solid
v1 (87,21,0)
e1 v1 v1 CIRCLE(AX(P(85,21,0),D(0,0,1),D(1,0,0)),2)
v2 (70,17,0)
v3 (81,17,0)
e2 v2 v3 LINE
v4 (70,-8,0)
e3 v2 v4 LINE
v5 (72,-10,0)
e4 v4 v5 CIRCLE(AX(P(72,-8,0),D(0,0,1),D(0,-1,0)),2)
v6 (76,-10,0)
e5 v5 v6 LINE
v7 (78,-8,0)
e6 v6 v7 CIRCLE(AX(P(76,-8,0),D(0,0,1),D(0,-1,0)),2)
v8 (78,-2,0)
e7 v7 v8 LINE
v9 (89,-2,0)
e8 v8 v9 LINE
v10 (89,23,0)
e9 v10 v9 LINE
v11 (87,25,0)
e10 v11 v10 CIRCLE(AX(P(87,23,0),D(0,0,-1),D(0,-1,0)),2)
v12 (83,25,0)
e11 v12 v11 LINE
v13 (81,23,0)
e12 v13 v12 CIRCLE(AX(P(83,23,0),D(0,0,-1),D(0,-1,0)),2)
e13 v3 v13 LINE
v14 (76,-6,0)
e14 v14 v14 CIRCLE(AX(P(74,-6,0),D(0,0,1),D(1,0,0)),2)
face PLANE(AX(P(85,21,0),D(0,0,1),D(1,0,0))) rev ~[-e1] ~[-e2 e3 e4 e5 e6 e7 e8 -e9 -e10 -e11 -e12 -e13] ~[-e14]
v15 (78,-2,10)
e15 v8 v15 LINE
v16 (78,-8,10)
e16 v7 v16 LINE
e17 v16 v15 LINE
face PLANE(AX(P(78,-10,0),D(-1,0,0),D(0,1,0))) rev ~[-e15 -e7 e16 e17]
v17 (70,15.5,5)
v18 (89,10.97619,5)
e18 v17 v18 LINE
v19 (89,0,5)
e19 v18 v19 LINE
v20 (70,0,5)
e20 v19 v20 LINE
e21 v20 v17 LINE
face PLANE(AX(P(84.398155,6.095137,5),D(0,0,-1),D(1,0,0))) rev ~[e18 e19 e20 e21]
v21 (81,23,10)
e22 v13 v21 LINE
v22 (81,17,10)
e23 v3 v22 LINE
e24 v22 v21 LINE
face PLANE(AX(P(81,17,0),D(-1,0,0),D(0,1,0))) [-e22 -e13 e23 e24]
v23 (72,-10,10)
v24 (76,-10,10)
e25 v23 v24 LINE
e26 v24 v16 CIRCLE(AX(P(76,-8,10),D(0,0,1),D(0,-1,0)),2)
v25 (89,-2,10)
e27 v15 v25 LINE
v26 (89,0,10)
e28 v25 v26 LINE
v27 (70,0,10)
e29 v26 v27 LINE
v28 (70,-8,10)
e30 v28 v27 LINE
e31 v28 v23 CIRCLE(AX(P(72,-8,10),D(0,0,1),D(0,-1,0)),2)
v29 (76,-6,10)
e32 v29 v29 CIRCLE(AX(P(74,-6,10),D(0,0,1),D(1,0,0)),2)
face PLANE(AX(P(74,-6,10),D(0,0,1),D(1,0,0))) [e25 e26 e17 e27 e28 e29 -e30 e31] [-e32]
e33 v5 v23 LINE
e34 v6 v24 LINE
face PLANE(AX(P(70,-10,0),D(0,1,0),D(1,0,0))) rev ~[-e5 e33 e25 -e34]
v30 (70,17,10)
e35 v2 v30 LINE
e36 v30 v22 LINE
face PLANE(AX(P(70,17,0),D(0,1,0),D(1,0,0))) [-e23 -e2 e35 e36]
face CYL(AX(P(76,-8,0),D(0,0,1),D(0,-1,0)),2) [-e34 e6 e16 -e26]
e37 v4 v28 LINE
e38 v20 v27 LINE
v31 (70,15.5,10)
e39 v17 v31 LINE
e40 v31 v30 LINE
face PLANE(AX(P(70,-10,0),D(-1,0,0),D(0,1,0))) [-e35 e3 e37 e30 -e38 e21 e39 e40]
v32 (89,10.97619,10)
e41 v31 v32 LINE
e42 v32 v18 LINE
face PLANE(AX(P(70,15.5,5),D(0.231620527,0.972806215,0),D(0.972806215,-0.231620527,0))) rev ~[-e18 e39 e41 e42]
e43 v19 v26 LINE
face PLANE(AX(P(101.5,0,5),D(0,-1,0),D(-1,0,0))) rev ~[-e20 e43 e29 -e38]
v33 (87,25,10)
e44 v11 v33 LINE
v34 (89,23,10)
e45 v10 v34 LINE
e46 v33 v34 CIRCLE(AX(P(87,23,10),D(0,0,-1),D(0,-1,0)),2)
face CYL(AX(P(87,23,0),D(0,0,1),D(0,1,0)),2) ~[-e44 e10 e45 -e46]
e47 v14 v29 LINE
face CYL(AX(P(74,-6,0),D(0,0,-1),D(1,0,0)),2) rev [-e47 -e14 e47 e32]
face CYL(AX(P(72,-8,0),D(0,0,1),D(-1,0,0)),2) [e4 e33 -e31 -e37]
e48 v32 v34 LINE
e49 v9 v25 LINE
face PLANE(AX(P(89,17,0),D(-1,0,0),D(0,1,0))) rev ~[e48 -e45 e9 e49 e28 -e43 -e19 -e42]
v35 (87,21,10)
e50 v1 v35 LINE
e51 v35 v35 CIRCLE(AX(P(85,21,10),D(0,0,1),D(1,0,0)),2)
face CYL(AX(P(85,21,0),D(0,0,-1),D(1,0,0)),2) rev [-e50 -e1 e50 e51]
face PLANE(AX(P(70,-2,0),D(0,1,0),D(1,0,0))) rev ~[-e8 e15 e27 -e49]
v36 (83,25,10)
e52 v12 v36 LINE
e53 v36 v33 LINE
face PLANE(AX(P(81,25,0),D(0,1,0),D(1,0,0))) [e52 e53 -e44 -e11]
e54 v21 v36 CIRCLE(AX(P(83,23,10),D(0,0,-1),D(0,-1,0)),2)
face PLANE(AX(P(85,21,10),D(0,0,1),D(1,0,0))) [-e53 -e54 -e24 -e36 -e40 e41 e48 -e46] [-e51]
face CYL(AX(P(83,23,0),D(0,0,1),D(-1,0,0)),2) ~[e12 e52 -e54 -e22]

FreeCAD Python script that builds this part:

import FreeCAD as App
import Part
import Sketcher
from FreeCAD import Vector


def edges_at(feature, points):
    """Names of the edges that pass closest to the given points."""
    edges = feature.Shape.Edges
    near = lambda p: min(range(len(edges)), key=lambda i: edges[i].distToShape(Part.Vertex(*p))[0])
    return sorted({f"Edge{near(p) + 1}" for p in points})


def add_polygon(sketch, points):
    """Adds a closed chain of lines whose ends are joined by coincident constraints."""
    first, n = sketch.GeometryCount, len(points)
    for a, b in zip(points, points[1:] + points[:1]):
        sketch.addGeometry(Part.LineSegment(App.Vector(*a, 0), App.Vector(*b, 0)), False)
    for i in range(n):
        sketch.addConstraint(Sketcher.Constraint("Coincident", first + i, 2, first + (i + 1) % n, 1))

doc = App.newDocument("Part")
body = doc.addObject("PartDesign::Body", "Body")

# Sketch on XY plane
sketch1 = doc.addObject("Sketcher::SketchObject", "Sketch")
body.addObject(sketch1)
sketch1.AttachmentSupport = (doc.XY_Plane, [""])
sketch1.MapMode = "FlatFace"
sketch1.addGeometry(Part.Circle(Vector(4, 4, 0), Vector(0, 0, 1), 2), False)
sketch1.addConstraint([
    Sketcher.Constraint("Diameter", 0, 4.0),
    Sketcher.Constraint("DistanceX", -1, 1, 0, 3, 4.0),
    Sketcher.Constraint("DistanceY", -1, 1, 0, 3, 4.0),
])
pad1 = doc.addObject("PartDesign::Pad", "Pad")
body.addObject(pad1)
pad1.Profile = sketch1
pad1.Length = 10
body2 = doc.addObject("PartDesign::Body", "Body001")

# Sketch on XY plane
sketch2 = doc.addObject("Sketcher::SketchObject", "Sketch001")
body2.addObject(sketch2)
sketch2.AttachmentSupport = (doc.getObject("XY_Plane001"), [""])
sketch2.MapMode = "FlatFace"
add_polygon(sketch2, [(0, 8), (0, 0), (8, 0), (8, 8)])  # lines 0-3
sketch2.addConstraint([
    Sketcher.Constraint("Vertical", 0),
    Sketcher.Constraint("Horizontal", 1),
    Sketcher.Constraint("Vertical", 2),
    Sketcher.Constraint("Horizontal", 3),
    Sketcher.Constraint("Coincident", 0, 2, -1, 1),
    Sketcher.Constraint("Equal", 3, 0),
    Sketcher.Constraint("DistanceX", 1, 1, 1, 2, 8.0),
])
pad2 = doc.addObject("PartDesign::Pad", "Pad001")
body2.addObject(pad2)
pad2.Profile = sketch2
pad2.Length = 10
doc.recompute()

boolean = doc.addObject("PartDesign::Boolean", "Boolean")
body2.addObject(boolean)
boolean.Type = "Cut"
boolean.addObjects([body])
body3 = doc.addObject("PartDesign::Body", "Body002")
doc.recompute()

body2.Placement = App.Placement(Vector(30, -10, 0), App.Rotation(Vector(0, 0, 1), 0))
boolean2 = doc.addObject("PartDesign::Boolean", "Boolean001")
body3.addObject(boolean2)
boolean2.Type = "Fuse"
boolean2.addObjects([body2])
doc.recompute()

fillet = doc.addObject("PartDesign::Fillet", "Fillet")
body3.addObject(fillet)
fillet.Base = (boolean2, edges_at(boolean2, [(30, -10, 5), (38, -10, 5)]))
fillet.Radius = 2
body4 = doc.addObject("PartDesign::Body", "Body003")
doc.recompute()

body3.Placement = App.Placement(Vector(40, 0, 0), App.Rotation(Vector(0, 0, 1), 0))
boolean3 = doc.addObject("PartDesign::Boolean", "Boolean002")
body4.addObject(boolean3)
boolean3.Type = "Fuse"
boolean3.addObjects([body3])
body5 = doc.addObject("PartDesign::Body", "Body004")

# Sketch on XY plane
sketch3 = doc.addObject("Sketcher::SketchObject", "Sketch002")
body5.addObject(sketch3)
sketch3.AttachmentSupport = (doc.getObject("XY_Plane004"), [""])
sketch3.MapMode = "FlatFace"
sketch3.addGeometry(Part.Circle(Vector(4, 4, 0), Vector(0, 0, 1), 2), False)
sketch3.addConstraint([
    Sketcher.Constraint("Diameter", 0, 4.0),
    Sketcher.Constraint("DistanceX", -1, 1, 0, 3, 4.0),
    Sketcher.Constraint("DistanceY", -1, 1, 0, 3, 4.0),
])
pad3 = doc.addObject("PartDesign::Pad", "Pad002")
body5.addObject(pad3)
pad3.Profile = sketch3
pad3.Length = 10
body6 = doc.addObject("PartDesign::Body", "Body005")

# Sketch on XY plane
sketch4 = doc.addObject("Sketcher::SketchObject", "Sketch003")
body6.addObject(sketch4)
sketch4.AttachmentSupport = (doc.getObject("XY_Plane005"), [""])
sketch4.MapMode = "FlatFace"
add_polygon(sketch4, [(0, 8), (0, 0), (8, 0), (8, 8)])  # lines 0-3
sketch4.addConstraint([
    Sketcher.Constraint("Vertical", 0),
    Sketcher.Constraint("Horizontal", 1),
    Sketcher.Constraint("Vertical", 2),
    Sketcher.Constraint("Horizontal", 3),
    Sketcher.Constraint("Coincident", 0, 2, -1, 1),
    Sketcher.Constraint("Equal", 3, 0),
    Sketcher.Constraint("DistanceX", 1, 1, 1, 2, 8.0),
])
pad4 = doc.addObject("PartDesign::Pad", "Pad003")
body6.addObject(pad4)
pad4.Profile = sketch4
pad4.Length = 10
doc.recompute()

boolean4 = doc.addObject("PartDesign::Boolean", "Boolean003")
body6.addObject(boolean4)
boolean4.Type = "Cut"
boolean4.addObjects([body5])
body7 = doc.addObject("PartDesign::Body", "Body006")
doc.recompute()

body6.Placement = App.Placement(Vector(45, 14, 0), App.Rotation(Vector(0, 0, 1), 0))
boolean5 = doc.addObject("PartDesign::Boolean", "Boolean004")
body7.addObject(boolean5)
boolean5.Type = "Fuse"
boolean5.addObjects([body6])
doc.recompute()

fillet2 = doc.addObject("PartDesign::Fillet", "Fillet001")
body7.addObject(fillet2)
fillet2.Base = (boolean5, edges_at(boolean5, [(45, 22, 5), (53, 22, 5)]))
fillet2.Radius = 2
body8 = doc.addObject("PartDesign::Body", "Body007")
doc.recompute()

body7.Placement = App.Placement(Vector(36, 3, 0), App.Rotation(Vector(0, 0, 1), 0))
boolean6 = doc.addObject("PartDesign::Boolean", "Boolean005")
body8.addObject(boolean6)
boolean6.Type = "Fuse"
boolean6.addObjects([body7])
body9 = doc.addObject("PartDesign::Body", "Body008")

# Sketch on XY plane
sketch5 = doc.addObject("Sketcher::SketchObject", "Sketch004")
body9.addObject(sketch5)
sketch5.AttachmentSupport = (doc.getObject("XY_Plane008"), [""])
sketch5.MapMode = "FlatFace"
add_polygon(sketch5, [(70, 15.5), (70, 0), (101.5, 0), (101.5, 8)])  # lines 0-3
sketch5.addConstraint([
    Sketcher.Constraint("Vertical", 0),
    Sketcher.Constraint("Horizontal", 1),
    Sketcher.Constraint("Vertical", 2),
    Sketcher.Constraint("PointOnObject", 0, 2, -1),
    Sketcher.Constraint("DistanceY", 2, 1, 2, 2, 8.0),
    Sketcher.Constraint("DistanceX", 1, 1, 1, 2, 31.5),
    Sketcher.Constraint("DistanceY", 0, 2, 0, 1, 15.5),
    Sketcher.Constraint("DistanceX", -1, 1, 0, 2, 70.0),
])
pad5 = doc.addObject("PartDesign::Pad", "Pad004")
body9.addObject(pad5)
pad5.Profile = sketch5
pad5.Length = 5
body10 = doc.addObject("PartDesign::Body", "Body009")
doc.recompute()

body9.Placement = App.Placement(Vector(0, 0, 5), App.Rotation(Vector(0, 0, 1), 0))
boolean7 = doc.addObject("PartDesign::Boolean", "Boolean006")
body10.addObject(boolean7)
boolean7.Type = "Fuse"
boolean7.addObjects([body9])
body11 = doc.addObject("PartDesign::Body", "Body010")

# Sketch on XY plane
sketch6 = doc.addObject("Sketcher::SketchObject", "Sketch005")
body11.addObject(sketch6)
sketch6.AttachmentSupport = (doc.getObject("XY_Plane010"), [""])
sketch6.MapMode = "FlatFace"
add_polygon(sketch6, [(70, 17), (70, -2), (89, -2), (89, 17)])  # lines 0-3
sketch6.addConstraint([
    Sketcher.Constraint("Vertical", 0),
    Sketcher.Constraint("Horizontal", 1),
    Sketcher.Constraint("Vertical", 2),
    Sketcher.Constraint("Horizontal", 3),
    Sketcher.Constraint("Equal", 3, 0),
    Sketcher.Constraint("DistanceX", 1, 1, 1, 2, 19.0),
    Sketcher.Constraint("DistanceX", -1, 1, 0, 2, 70.0),
    Sketcher.Constraint("DistanceY", 0, 2, -1, 1, 2.0),
])
pad6 = doc.addObject("PartDesign::Pad", "Pad005")
body11.addObject(pad6)
pad6.Profile = sketch6
pad6.Length = 10
doc.recompute()

boolean8 = doc.addObject("PartDesign::Boolean", "Boolean007")
body11.addObject(boolean8)
boolean8.Type = "Cut"
boolean8.addObjects([body10])
doc.recompute()

boolean9 = doc.addObject("PartDesign::Boolean", "Boolean008")
body11.addObject(boolean9)
boolean9.Type = "Fuse"
boolean9.addObjects([body4])
doc.recompute()

boolean10 = doc.addObject("PartDesign::Boolean", "Boolean009")
body11.addObject(boolean10)
boolean10.Type = "Fuse"
boolean10.addObjects([body8])

doc.recompute()
